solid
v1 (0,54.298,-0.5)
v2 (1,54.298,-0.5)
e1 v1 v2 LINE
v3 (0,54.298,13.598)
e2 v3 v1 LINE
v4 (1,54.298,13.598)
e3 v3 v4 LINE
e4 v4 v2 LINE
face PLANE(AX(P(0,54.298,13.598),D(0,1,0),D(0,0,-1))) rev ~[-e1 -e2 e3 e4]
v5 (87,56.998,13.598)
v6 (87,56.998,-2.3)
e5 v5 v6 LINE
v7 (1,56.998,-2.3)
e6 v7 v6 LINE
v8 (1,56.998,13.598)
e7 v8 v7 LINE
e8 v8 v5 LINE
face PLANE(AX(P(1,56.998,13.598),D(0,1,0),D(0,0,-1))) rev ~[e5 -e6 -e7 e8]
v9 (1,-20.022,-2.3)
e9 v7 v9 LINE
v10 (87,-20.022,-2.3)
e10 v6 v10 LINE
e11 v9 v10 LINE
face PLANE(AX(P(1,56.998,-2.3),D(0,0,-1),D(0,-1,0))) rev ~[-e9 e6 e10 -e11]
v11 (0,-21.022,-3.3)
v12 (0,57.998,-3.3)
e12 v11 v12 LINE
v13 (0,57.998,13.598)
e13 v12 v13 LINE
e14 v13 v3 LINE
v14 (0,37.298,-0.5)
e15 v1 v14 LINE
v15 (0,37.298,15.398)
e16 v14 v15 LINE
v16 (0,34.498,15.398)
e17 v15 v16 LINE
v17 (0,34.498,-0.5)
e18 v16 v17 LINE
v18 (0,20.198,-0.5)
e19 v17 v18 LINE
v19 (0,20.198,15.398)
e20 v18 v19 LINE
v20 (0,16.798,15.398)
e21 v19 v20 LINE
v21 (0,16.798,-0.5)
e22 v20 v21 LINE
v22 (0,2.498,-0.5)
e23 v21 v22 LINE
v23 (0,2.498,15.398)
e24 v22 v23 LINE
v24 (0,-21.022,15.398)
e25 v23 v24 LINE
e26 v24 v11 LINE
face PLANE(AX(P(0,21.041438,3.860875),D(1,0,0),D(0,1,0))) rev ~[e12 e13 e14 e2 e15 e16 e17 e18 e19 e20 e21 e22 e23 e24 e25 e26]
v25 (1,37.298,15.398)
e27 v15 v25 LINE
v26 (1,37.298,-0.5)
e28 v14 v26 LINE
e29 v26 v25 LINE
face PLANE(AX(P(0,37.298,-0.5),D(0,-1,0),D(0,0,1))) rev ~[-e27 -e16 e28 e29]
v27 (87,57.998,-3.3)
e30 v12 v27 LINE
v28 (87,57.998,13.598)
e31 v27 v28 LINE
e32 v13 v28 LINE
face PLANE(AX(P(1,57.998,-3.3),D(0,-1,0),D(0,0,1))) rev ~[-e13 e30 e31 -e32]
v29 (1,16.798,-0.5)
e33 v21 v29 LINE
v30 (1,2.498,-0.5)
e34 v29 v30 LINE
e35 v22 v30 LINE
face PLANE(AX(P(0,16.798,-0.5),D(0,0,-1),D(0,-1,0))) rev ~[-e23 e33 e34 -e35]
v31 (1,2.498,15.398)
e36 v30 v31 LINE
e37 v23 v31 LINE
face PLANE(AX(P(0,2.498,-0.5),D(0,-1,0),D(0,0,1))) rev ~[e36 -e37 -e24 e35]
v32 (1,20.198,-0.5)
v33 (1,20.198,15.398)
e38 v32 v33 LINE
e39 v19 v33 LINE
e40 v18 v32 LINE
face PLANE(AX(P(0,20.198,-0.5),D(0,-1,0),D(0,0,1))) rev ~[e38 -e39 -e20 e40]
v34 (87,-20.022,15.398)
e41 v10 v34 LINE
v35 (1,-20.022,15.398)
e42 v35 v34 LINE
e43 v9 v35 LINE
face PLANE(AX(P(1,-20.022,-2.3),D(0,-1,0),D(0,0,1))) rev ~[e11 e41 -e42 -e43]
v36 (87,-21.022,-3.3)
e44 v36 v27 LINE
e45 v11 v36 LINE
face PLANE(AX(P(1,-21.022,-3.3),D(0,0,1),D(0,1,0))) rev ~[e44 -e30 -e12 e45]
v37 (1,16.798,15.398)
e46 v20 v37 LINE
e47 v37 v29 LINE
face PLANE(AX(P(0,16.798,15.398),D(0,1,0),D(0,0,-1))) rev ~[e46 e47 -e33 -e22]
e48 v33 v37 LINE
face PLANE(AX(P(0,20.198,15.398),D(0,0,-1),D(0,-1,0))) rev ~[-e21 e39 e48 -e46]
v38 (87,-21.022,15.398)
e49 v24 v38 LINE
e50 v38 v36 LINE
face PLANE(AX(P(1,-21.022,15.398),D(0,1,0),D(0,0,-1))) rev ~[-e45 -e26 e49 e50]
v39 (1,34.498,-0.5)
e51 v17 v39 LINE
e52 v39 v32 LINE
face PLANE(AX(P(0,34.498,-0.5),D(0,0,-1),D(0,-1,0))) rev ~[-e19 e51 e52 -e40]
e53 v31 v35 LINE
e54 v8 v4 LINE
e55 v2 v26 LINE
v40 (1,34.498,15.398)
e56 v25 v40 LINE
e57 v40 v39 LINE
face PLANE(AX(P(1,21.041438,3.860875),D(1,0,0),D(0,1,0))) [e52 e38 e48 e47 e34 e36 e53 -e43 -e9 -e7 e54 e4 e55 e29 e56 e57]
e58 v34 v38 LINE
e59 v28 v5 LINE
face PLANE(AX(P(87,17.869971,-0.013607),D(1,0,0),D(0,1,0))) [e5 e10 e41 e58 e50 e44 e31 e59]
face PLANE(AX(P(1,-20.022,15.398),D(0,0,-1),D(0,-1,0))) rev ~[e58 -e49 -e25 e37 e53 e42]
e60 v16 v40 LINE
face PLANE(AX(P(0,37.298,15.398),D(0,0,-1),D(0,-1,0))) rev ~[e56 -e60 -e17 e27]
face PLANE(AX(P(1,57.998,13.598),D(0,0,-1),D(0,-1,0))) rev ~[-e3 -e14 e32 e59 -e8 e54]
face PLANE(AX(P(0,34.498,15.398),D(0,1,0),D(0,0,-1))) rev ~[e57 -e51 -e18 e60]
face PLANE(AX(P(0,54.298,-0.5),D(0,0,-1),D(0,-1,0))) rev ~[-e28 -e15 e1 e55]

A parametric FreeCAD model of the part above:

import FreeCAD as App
import Part
import Sketcher

V = App.Vector
Q = App.Units.Quantity

doc = App.newDocument("Part")
body = doc.addObject("PartDesign::Body", "Body")

sketch1 = body.newObject("Sketcher::SketchObject", "Sketch")
sketch1.AttachmentSupport = (doc.getObject("YZ_Plane"), [""])
sketch1.MapMode = "FlatFace"
sketch1.addGeometry([
    Part.LineSegment(V(-21, -3.3, 0), V(58, -3.3, 0)),
    Part.LineSegment(V(58, -3.3, 0), V(58, 13.6, 0)),
    Part.LineSegment(V(58, 13.6, 0), V(54.3, 13.6, 0)),
    Part.LineSegment(V(54.3, 13.6, 0), V(54.3, -0.5, 0)),
    Part.LineSegment(V(54.3, -0.5, 0), V(37.3, -0.5, 0)),
    Part.LineSegment(V(37.3, -0.5, 0), V(37.3, 15.4, 0)),
    Part.LineSegment(V(37.3, 15.4, 0), V(34.5, 15.4, 0)),
    Part.LineSegment(V(34.5, 15.4, 0), V(34.5, -0.5, 0)),
    Part.LineSegment(V(34.5, -0.5, 0), V(20.2, -0.5, 0)),
    Part.LineSegment(V(20.2, -0.5, 0), V(20.2, 15.4, 0)),
    Part.LineSegment(V(20.2, 15.4, 0), V(16.8, 15.4, 0)),
    Part.LineSegment(V(16.8, 15.4, 0), V(16.8, -0.5, 0)),
    Part.LineSegment(V(16.8, -0.5, 0), V(2.5, -0.5, 0)),
    Part.LineSegment(V(2.5, -0.5, 0), V(2.5, 15.4, 0)),
    Part.LineSegment(V(2.5, 15.4, 0), V(-21, 15.4, 0)),
    Part.LineSegment(V(-21, 15.4, 0), V(-21, -3.3, 0)),
], False)
sketch1.addConstraint([
    Sketcher.Constraint("Coincident", 0, 2, 1, 1),
    Sketcher.Constraint("Coincident", 1, 2, 2, 1),
    Sketcher.Constraint("Coincident", 2, 2, 3, 1),
    Sketcher.Constraint("Coincident", 3, 2, 4, 1),
    Sketcher.Constraint("Coincident", 4, 2, 5, 1),
    Sketcher.Constraint("Coincident", 5, 2, 6, 1),
    Sketcher.Constraint("Coincident", 6, 2, 7, 1),
    Sketcher.Constraint("Coincident", 7, 2, 8, 1),
    Sketcher.Constraint("Coincident", 8, 2, 9, 1),
    Sketcher.Constraint("Coincident", 9, 2, 10, 1),
    Sketcher.Constraint("Coincident", 10, 2, 11, 1),
    Sketcher.Constraint("Coincident", 11, 2, 12, 1),
    Sketcher.Constraint("Coincident", 12, 2, 13, 1),
    Sketcher.Constraint("Coincident", 13, 2, 14, 1),
    Sketcher.Constraint("Coincident", 14, 2, 15, 1),
    Sketcher.Constraint("Coincident", 15, 2, 0, 1),
    Sketcher.Constraint("Horizontal", 0),
    Sketcher.Constraint("Vertical", 1),
    Sketcher.Constraint("Horizontal", 2),
    Sketcher.Constraint("Vertical", 3),
    Sketcher.Constraint("Horizontal", 4),
    Sketcher.Constraint("Vertical", 5),
    Sketcher.Constraint("Horizontal", 6),
    Sketcher.Constraint("Vertical", 7),
    Sketcher.Constraint("Horizontal", 8),
    Sketcher.Constraint("Vertical", 9),
    Sketcher.Constraint("Horizontal", 10),
    Sketcher.Constraint("Vertical", 11),
    Sketcher.Constraint("Horizontal", 12),
    Sketcher.Constraint("Vertical", 13),
    Sketcher.Constraint("Horizontal", 14),
    Sketcher.Constraint("Vertical", 15),
    Sketcher.Constraint("Horizontal", 4, 2, 7, 2),
    Sketcher.Constraint("Horizontal", 6, 2, 9, 2),
    Sketcher.Constraint("Horizontal", 8, 2, 11, 2),
    Sketcher.Constraint("Horizontal", 10, 2, 13, 2),
    Sketcher.Constraint("Equal", 8, 12),
    Sketcher.Constraint("DistanceX", 4, 2, 4, 1, Q("17 mm")),
    Sketcher.Constraint("DistanceX", 2, 2, 2, 1, Q("3.7 mm")),
    Sketcher.Constraint("DistanceX", 6, 2, 6, 1, Q("2.8 mm")),
    Sketcher.Constraint("DistanceX", 8, 2, 8, 1, Q("14.3 mm")),
    Sketcher.Constraint("DistanceX", 10, 2, 10, 1, Q("3.4 mm")),
    Sketcher.Constraint("DistanceX", 0, 1, 0, 2, Q("79.02 mm")),
    Sketcher.Constraint("DistanceY", 0, 2, -1, 1, Q("3.3 mm")),
    Sketcher.Constraint("DistanceY", 3, 2, -1, 1, Q("0.5 mm")),
    Sketcher.Constraint("DistanceY", 2, 2, 5, 2, Q("1.8 mm")),
    Sketcher.Constraint("DistanceY", 1, 1, 1, 2, Q("16.898 mm")),
    Sketcher.Constraint("DistanceX", -1, 1, 0, 2, Q("57.998 mm")),
])
pad1 = body.newObject("PartDesign::Pad", "Pad")
pad1.Profile = sketch1
pad1.Length = 1

sketch2 = body.newObject("Sketcher::SketchObject", "Sketch001")
sketch2.AttachmentSupport = (doc.getObject("YZ_Plane"), [""])
sketch2.MapMode = "FlatFace"
sketch2.AttachmentOffset = App.Placement(V(0, 0, 1), App.Rotation())
sketch2.addGeometry([
    Part.LineSegment(V(-20, 15.4, 0), V(-21, 15.4, 0)),
    Part.LineSegment(V(-21, 15.4, 0), V(-21, -3.3, 0)),
    Part.LineSegment(V(-21, -3.3, 0), V(58, -3.3, 0)),
    Part.LineSegment(V(58, -3.3, 0), V(58, 13.6, 0)),
    Part.LineSegment(V(58, 13.6, 0), V(57, 13.6, 0)),
    Part.LineSegment(V(57, 13.6, 0), V(57, -2.3, 0)),
    Part.LineSegment(V(57, -2.3, 0), V(-20, -2.3, 0)),
    Part.LineSegment(V(-20, -2.3, 0), V(-20, 15.4, 0)),
], False)
sketch2.addConstraint([
    Sketcher.Constraint("Coincident", 0, 2, 1, 1),
    Sketcher.Constraint("Coincident", 1, 2, 2, 1),
    Sketcher.Constraint("Coincident", 2, 2, 3, 1),
    Sketcher.Constraint("Coincident", 3, 2, 4, 1),
    Sketcher.Constraint("Coincident", 4, 2, 5, 1),
    Sketcher.Constraint("Coincident", 5, 2, 6, 1),
    Sketcher.Constraint("Coincident", 6, 2, 7, 1),
    Sketcher.Constraint("Coincident", 7, 2, 0, 1),
    Sketcher.Constraint("Horizontal", 0),
    Sketcher.Constraint("Vertical", 1),
    Sketcher.Constraint("Horizontal", 2),
    Sketcher.Constraint("Vertical", 3),
    Sketcher.Constraint("Horizontal", 4),
    Sketcher.Constraint("Vertical", 5),
    Sketcher.Constraint("Horizontal", 6),
    Sketcher.Constraint("Vertical", 7),
    Sketcher.Constraint("Equal", 0, 4),
    Sketcher.Constraint("DistanceX", 0, 2, 0, 1, Q("1 mm")),
    Sketcher.Constraint("DistanceY", 2, 2, 5, 2, Q("1 mm")),
    Sketcher.Constraint("DistanceX", 2, 1, 2, 2, Q("79.02 mm")),
    Sketcher.Constraint("DistanceY", 1, 2, -1, 1, Q("3.3 mm")),
    Sketcher.Constraint("DistanceY", 3, 2, 0, 2, Q("1.8 mm")),
    Sketcher.Constraint("DistanceY", 1, 2, 1, 1, Q("18.698 mm")),
    Sketcher.Constraint("DistanceX", 0, 2, -1, 1, Q("21.022 mm")),
])
pad2 = body.newObject("PartDesign::Pad", "Pad001")
pad2.Profile = sketch2
pad2.Length = 86

doc.recompute()
